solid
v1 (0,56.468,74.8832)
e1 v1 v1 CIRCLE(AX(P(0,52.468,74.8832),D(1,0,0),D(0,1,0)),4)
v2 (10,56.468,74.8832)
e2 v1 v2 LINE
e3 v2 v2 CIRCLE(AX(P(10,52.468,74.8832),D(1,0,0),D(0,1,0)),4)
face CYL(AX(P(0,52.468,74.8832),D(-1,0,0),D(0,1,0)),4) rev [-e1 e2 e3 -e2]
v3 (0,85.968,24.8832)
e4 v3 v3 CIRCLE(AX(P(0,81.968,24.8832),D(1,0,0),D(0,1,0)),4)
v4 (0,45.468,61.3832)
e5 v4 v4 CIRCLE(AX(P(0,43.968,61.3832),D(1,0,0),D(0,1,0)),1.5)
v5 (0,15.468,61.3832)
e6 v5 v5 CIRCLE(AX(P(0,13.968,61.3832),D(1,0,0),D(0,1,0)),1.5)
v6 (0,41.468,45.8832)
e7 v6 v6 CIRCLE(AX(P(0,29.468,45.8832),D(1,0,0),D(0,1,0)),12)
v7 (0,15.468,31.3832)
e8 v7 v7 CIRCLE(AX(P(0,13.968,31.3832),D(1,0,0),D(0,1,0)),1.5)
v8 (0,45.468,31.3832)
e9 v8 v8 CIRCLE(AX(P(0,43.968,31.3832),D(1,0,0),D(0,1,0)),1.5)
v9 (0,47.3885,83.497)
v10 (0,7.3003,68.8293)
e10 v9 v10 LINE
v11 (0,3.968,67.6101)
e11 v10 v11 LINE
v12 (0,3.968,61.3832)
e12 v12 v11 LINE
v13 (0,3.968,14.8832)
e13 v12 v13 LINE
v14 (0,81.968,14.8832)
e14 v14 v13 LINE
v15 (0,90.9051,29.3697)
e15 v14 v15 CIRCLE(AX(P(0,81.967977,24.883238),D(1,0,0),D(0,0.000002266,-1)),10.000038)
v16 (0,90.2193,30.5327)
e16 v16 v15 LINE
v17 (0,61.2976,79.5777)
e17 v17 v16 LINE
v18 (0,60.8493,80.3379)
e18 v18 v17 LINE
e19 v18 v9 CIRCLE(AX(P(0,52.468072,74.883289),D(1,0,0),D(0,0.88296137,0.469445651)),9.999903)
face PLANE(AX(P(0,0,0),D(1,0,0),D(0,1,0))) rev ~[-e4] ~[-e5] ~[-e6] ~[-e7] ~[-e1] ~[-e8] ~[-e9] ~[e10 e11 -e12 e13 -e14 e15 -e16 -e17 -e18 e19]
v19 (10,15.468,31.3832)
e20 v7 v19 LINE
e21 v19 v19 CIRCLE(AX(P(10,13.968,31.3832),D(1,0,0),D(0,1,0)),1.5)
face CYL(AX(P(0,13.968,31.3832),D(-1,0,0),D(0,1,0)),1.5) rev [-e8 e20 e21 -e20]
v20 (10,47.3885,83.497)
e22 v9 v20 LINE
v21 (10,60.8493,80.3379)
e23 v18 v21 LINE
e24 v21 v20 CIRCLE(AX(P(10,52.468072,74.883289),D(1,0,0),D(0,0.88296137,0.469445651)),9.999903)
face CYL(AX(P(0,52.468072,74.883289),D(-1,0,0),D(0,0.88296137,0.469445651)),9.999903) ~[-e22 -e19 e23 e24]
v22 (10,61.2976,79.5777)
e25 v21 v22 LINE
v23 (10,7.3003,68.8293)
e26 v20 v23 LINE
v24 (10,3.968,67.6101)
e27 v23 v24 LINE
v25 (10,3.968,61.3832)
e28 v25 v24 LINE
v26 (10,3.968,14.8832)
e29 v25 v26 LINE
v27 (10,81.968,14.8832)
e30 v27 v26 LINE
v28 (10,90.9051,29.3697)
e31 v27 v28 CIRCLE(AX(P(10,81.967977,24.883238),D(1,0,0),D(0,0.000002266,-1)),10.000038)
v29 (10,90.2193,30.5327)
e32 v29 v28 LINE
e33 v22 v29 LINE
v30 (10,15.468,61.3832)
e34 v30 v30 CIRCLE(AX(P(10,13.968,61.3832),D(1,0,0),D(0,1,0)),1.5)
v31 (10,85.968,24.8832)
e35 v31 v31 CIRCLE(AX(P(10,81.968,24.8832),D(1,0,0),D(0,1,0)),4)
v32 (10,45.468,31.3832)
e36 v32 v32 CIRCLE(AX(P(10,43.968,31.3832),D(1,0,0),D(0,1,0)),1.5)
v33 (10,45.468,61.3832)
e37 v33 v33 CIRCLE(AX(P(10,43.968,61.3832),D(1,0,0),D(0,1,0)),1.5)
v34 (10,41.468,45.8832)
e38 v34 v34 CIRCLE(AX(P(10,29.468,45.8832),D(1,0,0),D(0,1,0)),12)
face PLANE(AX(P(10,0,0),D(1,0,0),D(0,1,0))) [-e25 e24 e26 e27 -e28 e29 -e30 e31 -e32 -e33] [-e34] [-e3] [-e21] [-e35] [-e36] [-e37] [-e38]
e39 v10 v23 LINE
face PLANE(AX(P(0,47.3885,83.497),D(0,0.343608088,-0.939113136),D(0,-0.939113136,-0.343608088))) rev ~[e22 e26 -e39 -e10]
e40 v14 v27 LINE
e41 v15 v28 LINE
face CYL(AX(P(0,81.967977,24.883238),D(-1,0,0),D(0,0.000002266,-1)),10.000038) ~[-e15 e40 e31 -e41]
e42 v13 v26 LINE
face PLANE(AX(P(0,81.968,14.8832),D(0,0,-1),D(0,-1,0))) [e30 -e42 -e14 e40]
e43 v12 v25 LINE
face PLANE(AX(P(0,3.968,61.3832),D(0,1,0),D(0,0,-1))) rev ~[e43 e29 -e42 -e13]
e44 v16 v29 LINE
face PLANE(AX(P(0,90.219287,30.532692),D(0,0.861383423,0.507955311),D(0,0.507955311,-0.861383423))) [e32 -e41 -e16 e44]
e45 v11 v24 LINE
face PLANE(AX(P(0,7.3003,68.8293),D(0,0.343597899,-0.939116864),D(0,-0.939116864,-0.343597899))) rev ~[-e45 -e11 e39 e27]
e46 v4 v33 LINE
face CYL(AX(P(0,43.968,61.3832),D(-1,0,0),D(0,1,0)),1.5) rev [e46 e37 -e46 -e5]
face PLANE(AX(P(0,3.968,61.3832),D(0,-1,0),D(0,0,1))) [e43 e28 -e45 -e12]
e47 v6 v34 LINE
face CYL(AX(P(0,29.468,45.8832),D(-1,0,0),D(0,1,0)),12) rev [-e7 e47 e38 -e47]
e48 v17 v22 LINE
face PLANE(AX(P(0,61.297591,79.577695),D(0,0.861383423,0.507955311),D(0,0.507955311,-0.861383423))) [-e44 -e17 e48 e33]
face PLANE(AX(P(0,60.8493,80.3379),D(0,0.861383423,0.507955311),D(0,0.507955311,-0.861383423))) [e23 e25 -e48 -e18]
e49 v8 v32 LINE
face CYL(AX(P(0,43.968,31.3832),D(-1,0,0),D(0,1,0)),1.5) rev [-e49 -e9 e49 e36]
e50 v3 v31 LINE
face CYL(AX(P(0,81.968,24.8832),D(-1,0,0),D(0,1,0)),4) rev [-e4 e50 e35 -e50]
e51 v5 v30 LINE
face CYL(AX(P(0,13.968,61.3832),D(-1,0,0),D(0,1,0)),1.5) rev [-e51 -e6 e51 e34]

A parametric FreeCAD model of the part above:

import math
import FreeCAD as App
import Part
import Sketcher
Q = App.Units.Quantity

doc = App.newDocument("Part")
body = doc.addObject("PartDesign::Body", "Body")

# Sketch on YZ plane
sketch1 = body.newObject("Sketcher::SketchObject", "Sketch")
sketch1.AttachmentSupport = (doc.getObject("YZ_Plane"), [""])
sketch1.MapMode = "FlatFace"
sketch1.addGeometry([
    Part.LineSegment(App.Vector(90.9, 29.4, 0), App.Vector(60.8, 80.3, 0)),  # 0
    Part.ArcOfCircle(Part.Circle(App.Vector(52.5, 74.9, 0), App.Vector(0, 0, 1), 10), math.radians(33), math.radians(121)),  # 1
    Part.LineSegment(App.Vector(47.4, 83.5, 0), App.Vector(7.3, 68.8, 0)),  # 2
    Part.LineSegment(App.Vector(7.3, 68.8, 0), App.Vector(4, 67.6, 0)),  # 3
    Part.LineSegment(App.Vector(4, 67.6, 0), App.Vector(4, 14.9, 0)),  # 4
    Part.LineSegment(App.Vector(4, 14.9, 0), App.Vector(82, 14.9, 0)),  # 5
    Part.ArcOfCircle(Part.Circle(App.Vector(82, 24.9, 0), App.Vector(0, 0, 1), 10), math.radians(-90), math.radians(27)),  # 6
    Part.Circle(App.Vector(14, 31.4, 0), App.Vector(0, 0, 1), 1.5),  # 7
    Part.Circle(App.Vector(44, 31.4, 0), App.Vector(0, 0, 1), 1.5),  # 8
    Part.Circle(App.Vector(29.5, 45.9, 0), App.Vector(0, 0, 1), 12),  # 9
    Part.Circle(App.Vector(82, 24.9, 0), App.Vector(0, 0, 1), 4),  # 10
    Part.Circle(App.Vector(14, 61.4, 0), App.Vector(0, 0, 1), 1.5),  # 11
    Part.Circle(App.Vector(44, 61.4, 0), App.Vector(0, 0, 1), 1.5),  # 12
    Part.Circle(App.Vector(52.5, 74.9, 0), App.Vector(0, 0, 1), 4),  # 13
], False)
sketch1.addConstraint([
    Sketcher.Constraint("Coincident", 0, 2, 1, 1),
    Sketcher.Constraint("Coincident", 1, 2, 2, 1),
    Sketcher.Constraint("Coincident", 2, 2, 3, 1),
    Sketcher.Constraint("Coincident", 3, 2, 4, 1),
    Sketcher.Constraint("Coincident", 4, 2, 5, 1),
    Sketcher.Constraint("Tangent", 5, 2, 6, 1),
    Sketcher.Constraint("Coincident", 6, 2, 0, 1),
    Sketcher.Constraint("Vertical", 4),
    Sketcher.Constraint("Horizontal", 5),
    Sketcher.Constraint("Coincident", 10, 3, 6, 3),
    Sketcher.Constraint("Coincident", 13, 3, 1, 3),
    Sketcher.Constraint("Equal", 1, 6),
    Sketcher.Constraint("Equal", 7, 8),
    Sketcher.Constraint("Equal", 8, 11),
    Sketcher.Constraint("Equal", 11, 12),
    Sketcher.Constraint("Equal", 10, 13),
    Sketcher.Constraint("Parallel", 2, 3),
    Sketcher.Constraint("Horizontal", 7, 3, 8, 3),
    Sketcher.Constraint("Horizontal", 11, 3, 12, 3),
    Sketcher.Constraint("Vertical", 7, 3, 11, 3),
    Sketcher.Constraint("Vertical", 8, 3, 12, 3),
    Sketcher.Constraint("Diameter", 7, Q("3 mm")),
    Sketcher.Constraint("Diameter", 9, Q("24 mm")),
    Sketcher.Constraint("Diameter", 10, Q("8 mm")),
    Sketcher.Constraint("Radius", 1, Q("10 mm")),
    Sketcher.Constraint("DistanceX", 5, 1, 5, 2, Q("78 mm")),
    Sketcher.Constraint("DistanceY", 6, 3, 1, 3, Q("50 mm")),
    Sketcher.Constraint("DistanceX", 7, 3, 6, 3, Q("68 mm")),
    Sketcher.Constraint("DistanceX", 7, 3, 8, 3, Q("30 mm")),
    Sketcher.Constraint("DistanceX", 9, 3, 1, 3, Q("23 mm")),
    Sketcher.Constraint("DistanceY", 9, 3, 1, 3, Q("29 mm")),
    Sketcher.Constraint("DistanceY", 7, 3, 11, 3, Q("30 mm")),
    Sketcher.Constraint("DistanceX", 1, 3, 6, 3, Q("29.5 mm")),
    Sketcher.Constraint("DistanceY", 7, 3, 1, 3, Q("43.5 mm")),
    Sketcher.Constraint("DistanceY", 4, 2, 4, 1, Q("52.727 mm")),
    Sketcher.Constraint("DistanceY", -1, 1, 3, 2, Q("67.61 mm")),
    Sketcher.Constraint("DistanceX", -1, 1, 1, 3, Q("52.468 mm")),
    Sketcher.Constraint("DistanceY", -1, 1, 0, 2, Q("80.338 mm")),
    Sketcher.Constraint("DistanceY", -1, 1, 1, 2, Q("83.497 mm")),
    Sketcher.Constraint("DistanceX", -1, 1, 6, 2, Q("90.905 mm")),
    Sketcher.Constraint("DistanceY", 11, 3, 2, 2, Q("7.446 mm")),
])
pad1 = body.newObject("PartDesign::Pad", "Pad")
pad1.Profile = sketch1
pad1.Length = 10

doc.recompute()
